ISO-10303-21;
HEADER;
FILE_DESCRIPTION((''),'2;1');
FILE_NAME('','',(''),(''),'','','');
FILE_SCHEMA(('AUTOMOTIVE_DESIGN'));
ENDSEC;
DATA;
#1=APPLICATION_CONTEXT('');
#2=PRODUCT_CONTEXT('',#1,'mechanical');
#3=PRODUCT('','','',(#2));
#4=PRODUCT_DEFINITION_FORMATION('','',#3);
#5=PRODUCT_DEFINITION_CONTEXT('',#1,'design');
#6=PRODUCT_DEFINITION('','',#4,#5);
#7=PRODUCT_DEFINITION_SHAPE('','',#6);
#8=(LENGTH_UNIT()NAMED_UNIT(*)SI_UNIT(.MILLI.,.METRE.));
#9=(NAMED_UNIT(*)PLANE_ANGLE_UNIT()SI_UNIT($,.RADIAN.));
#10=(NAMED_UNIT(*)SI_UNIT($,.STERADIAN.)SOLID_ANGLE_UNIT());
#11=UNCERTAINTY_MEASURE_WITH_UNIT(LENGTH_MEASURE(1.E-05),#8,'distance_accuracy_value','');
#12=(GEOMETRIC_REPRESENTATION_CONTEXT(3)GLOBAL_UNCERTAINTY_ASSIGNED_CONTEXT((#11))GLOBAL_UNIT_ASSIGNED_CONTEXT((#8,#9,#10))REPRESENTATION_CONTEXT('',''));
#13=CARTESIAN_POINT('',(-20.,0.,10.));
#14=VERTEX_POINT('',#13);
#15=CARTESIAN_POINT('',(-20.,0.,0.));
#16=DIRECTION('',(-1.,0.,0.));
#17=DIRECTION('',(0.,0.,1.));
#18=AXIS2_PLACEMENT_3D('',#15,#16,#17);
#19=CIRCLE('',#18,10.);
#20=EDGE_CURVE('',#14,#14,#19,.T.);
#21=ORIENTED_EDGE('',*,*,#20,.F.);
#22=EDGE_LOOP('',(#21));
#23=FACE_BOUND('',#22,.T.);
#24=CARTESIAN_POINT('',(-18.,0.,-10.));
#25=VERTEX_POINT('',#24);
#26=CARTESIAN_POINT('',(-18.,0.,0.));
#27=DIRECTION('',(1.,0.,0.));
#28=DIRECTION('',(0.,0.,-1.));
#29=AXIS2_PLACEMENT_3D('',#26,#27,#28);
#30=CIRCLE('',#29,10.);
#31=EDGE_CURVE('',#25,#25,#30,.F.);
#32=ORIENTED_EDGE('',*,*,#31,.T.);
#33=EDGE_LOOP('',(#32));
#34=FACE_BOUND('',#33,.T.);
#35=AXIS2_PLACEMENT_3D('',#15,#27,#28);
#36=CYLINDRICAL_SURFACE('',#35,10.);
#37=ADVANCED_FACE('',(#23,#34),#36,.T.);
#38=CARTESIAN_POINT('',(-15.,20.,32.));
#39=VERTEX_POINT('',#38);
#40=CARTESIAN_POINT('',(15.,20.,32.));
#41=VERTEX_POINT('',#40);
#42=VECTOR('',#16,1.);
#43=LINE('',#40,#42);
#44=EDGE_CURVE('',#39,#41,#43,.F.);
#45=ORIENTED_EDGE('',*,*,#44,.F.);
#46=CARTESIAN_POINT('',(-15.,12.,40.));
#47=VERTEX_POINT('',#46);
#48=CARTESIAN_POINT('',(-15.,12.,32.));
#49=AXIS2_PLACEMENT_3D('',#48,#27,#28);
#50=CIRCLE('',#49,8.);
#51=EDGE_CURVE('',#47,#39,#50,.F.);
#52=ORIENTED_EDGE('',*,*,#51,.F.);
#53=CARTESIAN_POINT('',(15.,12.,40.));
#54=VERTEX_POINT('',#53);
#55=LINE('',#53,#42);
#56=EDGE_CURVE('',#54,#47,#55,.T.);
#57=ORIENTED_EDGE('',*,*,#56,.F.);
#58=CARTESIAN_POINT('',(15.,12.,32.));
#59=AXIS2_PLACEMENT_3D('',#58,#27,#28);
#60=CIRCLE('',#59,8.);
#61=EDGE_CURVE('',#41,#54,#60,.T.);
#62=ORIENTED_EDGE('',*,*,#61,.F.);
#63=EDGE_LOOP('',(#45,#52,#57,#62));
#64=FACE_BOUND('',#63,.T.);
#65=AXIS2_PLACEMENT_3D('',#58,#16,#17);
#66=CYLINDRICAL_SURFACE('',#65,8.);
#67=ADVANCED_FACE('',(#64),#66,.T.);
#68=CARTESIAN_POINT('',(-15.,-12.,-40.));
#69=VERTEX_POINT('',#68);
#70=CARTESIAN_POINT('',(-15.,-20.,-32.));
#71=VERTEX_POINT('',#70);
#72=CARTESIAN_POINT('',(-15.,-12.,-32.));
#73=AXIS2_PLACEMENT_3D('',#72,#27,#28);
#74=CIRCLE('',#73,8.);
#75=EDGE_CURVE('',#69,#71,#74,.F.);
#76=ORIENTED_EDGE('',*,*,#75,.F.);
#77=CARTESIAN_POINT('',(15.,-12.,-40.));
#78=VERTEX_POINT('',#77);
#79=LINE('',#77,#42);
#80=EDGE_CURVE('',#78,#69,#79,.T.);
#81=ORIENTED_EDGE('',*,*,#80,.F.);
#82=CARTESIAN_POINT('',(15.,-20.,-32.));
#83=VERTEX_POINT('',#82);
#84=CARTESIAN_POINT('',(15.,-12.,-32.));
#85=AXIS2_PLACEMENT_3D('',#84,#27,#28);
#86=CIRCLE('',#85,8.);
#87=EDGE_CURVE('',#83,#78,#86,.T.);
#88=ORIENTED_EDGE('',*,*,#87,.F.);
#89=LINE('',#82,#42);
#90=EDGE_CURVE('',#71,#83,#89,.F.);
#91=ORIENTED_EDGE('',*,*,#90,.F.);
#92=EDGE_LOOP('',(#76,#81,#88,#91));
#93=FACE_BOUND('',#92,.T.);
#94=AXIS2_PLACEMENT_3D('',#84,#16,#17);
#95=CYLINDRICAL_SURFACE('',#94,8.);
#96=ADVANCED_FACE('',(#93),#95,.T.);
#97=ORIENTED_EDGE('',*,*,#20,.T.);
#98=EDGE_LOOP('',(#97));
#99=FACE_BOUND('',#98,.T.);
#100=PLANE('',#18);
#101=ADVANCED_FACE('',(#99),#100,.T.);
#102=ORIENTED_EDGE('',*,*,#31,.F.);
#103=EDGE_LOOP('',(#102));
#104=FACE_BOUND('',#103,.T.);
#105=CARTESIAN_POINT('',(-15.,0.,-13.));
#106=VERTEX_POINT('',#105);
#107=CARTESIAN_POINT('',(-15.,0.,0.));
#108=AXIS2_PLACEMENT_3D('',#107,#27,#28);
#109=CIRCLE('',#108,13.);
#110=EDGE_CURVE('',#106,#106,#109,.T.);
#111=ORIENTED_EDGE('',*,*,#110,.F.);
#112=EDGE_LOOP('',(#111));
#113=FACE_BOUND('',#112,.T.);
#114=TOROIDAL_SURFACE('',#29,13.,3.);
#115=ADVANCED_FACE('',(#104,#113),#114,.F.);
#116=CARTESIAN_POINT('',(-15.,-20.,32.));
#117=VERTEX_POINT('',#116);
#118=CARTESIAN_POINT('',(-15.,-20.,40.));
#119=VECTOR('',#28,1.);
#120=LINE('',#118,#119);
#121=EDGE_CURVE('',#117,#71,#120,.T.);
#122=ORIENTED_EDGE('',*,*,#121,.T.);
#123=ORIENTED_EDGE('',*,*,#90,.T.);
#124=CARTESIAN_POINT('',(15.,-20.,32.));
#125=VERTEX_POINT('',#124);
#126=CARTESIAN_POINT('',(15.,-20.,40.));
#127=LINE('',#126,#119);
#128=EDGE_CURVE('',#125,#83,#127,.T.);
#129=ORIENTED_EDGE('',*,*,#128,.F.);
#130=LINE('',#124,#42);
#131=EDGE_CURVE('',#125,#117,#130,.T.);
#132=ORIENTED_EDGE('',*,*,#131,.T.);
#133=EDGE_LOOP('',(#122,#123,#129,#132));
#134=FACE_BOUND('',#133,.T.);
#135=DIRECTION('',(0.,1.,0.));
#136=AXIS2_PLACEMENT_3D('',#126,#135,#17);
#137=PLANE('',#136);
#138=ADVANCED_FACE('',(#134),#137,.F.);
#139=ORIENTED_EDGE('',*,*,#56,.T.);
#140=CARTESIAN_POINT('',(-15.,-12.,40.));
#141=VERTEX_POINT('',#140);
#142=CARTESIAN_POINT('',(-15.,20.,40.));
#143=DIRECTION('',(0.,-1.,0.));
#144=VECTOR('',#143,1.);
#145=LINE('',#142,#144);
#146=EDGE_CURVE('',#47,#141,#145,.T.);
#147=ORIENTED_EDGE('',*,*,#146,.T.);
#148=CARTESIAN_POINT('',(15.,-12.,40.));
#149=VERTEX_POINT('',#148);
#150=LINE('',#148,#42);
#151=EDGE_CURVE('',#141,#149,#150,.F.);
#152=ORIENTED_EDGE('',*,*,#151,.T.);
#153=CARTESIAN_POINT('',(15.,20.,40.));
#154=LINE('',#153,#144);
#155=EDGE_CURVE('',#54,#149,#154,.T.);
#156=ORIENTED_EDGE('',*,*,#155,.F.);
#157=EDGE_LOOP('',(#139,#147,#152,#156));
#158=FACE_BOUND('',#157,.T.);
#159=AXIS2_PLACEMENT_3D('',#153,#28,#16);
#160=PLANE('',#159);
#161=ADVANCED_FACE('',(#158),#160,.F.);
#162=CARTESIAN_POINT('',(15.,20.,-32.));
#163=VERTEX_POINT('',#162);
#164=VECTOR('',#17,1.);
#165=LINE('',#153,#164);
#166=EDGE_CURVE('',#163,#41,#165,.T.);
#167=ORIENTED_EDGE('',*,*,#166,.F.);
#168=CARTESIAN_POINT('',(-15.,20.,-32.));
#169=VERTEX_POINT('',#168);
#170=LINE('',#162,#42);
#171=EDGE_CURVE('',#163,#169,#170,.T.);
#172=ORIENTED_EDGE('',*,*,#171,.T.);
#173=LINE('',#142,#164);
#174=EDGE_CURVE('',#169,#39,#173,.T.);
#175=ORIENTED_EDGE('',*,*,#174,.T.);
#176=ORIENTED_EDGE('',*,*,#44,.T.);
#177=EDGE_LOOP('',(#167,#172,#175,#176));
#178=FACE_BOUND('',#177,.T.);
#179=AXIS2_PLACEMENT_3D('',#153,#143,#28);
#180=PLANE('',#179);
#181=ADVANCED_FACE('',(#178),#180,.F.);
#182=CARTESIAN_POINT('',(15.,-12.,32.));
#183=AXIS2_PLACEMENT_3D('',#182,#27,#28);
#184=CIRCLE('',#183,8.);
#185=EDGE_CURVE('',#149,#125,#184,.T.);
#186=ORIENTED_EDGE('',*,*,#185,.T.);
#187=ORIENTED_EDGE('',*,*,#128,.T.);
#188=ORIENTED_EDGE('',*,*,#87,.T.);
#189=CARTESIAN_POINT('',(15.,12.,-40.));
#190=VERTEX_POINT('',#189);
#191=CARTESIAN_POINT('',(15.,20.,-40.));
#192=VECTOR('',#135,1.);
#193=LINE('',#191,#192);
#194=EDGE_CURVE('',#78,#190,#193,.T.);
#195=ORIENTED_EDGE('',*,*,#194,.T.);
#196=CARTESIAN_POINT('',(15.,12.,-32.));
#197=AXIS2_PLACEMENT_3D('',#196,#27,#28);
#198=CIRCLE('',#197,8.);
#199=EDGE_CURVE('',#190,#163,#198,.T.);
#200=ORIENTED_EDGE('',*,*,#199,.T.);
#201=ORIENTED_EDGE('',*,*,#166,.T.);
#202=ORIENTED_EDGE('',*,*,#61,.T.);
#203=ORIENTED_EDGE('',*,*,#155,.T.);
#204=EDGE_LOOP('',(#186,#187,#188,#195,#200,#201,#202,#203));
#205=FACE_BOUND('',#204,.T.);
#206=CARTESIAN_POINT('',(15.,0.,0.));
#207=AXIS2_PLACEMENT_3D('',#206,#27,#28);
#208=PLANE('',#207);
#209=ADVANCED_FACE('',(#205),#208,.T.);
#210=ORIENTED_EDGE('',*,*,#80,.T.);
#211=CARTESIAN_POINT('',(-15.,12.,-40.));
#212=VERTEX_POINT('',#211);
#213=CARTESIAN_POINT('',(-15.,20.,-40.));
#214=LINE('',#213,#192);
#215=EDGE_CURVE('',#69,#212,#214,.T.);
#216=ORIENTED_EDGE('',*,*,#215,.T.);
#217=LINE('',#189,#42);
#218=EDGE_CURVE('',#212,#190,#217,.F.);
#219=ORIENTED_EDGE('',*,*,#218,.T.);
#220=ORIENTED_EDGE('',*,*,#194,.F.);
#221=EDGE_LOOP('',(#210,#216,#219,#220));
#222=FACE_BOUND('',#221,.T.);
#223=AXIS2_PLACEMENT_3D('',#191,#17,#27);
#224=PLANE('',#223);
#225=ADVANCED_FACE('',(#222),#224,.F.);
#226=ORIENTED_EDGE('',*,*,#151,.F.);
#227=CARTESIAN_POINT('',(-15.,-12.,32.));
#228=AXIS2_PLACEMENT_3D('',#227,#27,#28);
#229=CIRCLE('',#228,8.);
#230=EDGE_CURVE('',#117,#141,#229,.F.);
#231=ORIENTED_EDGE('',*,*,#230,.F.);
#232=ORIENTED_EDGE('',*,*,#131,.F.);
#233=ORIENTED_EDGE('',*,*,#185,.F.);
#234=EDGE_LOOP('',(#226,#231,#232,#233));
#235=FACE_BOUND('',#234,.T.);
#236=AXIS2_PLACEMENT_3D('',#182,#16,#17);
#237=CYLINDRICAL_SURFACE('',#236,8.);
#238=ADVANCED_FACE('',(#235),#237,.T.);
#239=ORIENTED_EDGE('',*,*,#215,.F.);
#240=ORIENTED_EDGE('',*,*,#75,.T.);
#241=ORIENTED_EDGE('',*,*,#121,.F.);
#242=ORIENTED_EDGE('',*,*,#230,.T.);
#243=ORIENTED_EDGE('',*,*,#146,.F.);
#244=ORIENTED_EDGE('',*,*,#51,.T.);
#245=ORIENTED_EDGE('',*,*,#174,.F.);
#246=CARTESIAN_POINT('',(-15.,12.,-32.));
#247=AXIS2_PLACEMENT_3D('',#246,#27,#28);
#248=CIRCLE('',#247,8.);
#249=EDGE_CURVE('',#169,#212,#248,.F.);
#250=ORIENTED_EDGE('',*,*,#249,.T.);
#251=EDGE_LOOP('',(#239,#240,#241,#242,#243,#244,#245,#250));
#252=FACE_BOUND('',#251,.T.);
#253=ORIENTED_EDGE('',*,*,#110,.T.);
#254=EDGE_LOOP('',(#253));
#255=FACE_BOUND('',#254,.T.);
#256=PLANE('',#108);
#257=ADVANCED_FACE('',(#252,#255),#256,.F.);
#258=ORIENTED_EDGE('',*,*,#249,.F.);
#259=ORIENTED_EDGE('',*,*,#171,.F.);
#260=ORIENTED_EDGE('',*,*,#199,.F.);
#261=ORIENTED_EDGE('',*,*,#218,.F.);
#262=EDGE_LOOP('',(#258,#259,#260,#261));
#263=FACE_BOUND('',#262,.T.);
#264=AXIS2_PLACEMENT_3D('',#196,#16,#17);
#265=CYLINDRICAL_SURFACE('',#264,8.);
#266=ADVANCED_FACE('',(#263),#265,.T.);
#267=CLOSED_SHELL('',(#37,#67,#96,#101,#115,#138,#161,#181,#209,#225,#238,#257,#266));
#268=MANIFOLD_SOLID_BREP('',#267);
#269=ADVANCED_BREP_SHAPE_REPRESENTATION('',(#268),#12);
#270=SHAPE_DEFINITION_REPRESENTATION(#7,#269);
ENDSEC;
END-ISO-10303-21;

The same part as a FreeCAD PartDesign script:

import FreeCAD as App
import Part
import Sketcher

V = App.Vector


def edges_at(feature, points):
    """Names of the edges that pass closest to the given points."""
    edges = feature.Shape.Edges
    near = lambda p: min(range(len(edges)), key=lambda i: edges[i].distToShape(Part.Vertex(*p))[0])
    return sorted({f"Edge{near(p) + 1}" for p in points})


def add_polygon(sketch, points):
    """Adds a closed chain of lines whose ends are joined by coincident constraints."""
    first, n = sketch.GeometryCount, len(points)
    for a, b in zip(points, points[1:] + points[:1]):
        sketch.addGeometry(Part.LineSegment(App.Vector(*a, 0), App.Vector(*b, 0)), False)
    for i in range(n):
        sketch.addConstraint(Sketcher.Constraint("Coincident", first + i, 2, first + (i + 1) % n, 1))

doc = App.newDocument("Part")
body = doc.addObject("PartDesign::Body", "Body")

# Sketch on YZ plane
sketch1 = doc.addObject("Sketcher::SketchObject", "Sketch")
body.addObject(sketch1)
sketch1.AttachmentSupport = (doc.YZ_Plane, [""])
sketch1.MapMode = "FlatFace"
add_polygon(sketch1, [(20, 40), (-20, 40), (-20, -40), (20, -40)])  # lines 0-3
sketch1.addConstraint(Sketcher.Constraint("Horizontal", 0))
sketch1.addConstraint(Sketcher.Constraint("Vertical", 1))
sketch1.addConstraint(Sketcher.Constraint("Horizontal", 2))
sketch1.addConstraint(Sketcher.Constraint("Vertical", 3))
sketch1.addConstraint(Sketcher.Constraint("Symmetric", 0, 2, 2, 2, -1, 1))
sketch1.addConstraint(Sketcher.Constraint("DistanceX", 0, 2, 0, 1, 40.0))
sketch1.addConstraint(Sketcher.Constraint("DistanceY", 1, 2, 1, 1, 80.0))
pad1 = doc.addObject("PartDesign::Pad", "Pad")
body.addObject(pad1)
pad1.Profile = sketch1
pad1.Length = 30
pad1.Midplane = True
doc.recompute()

fillet = doc.addObject("PartDesign::Fillet", "Fillet")
body.addObject(fillet)
fillet.Base = (pad1, edges_at(pad1, [
    (0, -20, -40),
    (0, -20, 40),
    (0, 20, 40),
    (0, 20, -40),
]))
fillet.Radius = 8

# Sketch on YZ plane
sketch2 = doc.addObject("Sketcher::SketchObject", "Sketch001")
body.addObject(sketch2)
sketch2.AttachmentSupport = (doc.YZ_Plane, [""])
sketch2.MapMode = "FlatFace"
sketch2.AttachmentOffset = App.Placement(V(0, 0, -15), App.Rotation())
sketch2.addGeometry(Part.Circle(V(0, 0, 0), V(0, 0, 1), 10), False)
sketch2.addConstraint(Sketcher.Constraint("Coincident", 0, 3, -1, 1))
sketch2.addConstraint(Sketcher.Constraint("Diameter", 0, 20.0))
pad2 = doc.addObject("PartDesign::Pad", "Pad001")
body.addObject(pad2)
pad2.Profile = sketch2
pad2.Length = 5
pad2.Reversed = True
doc.recompute()

fillet2 = doc.addObject("PartDesign::Fillet", "Fillet001")
body.addObject(fillet2)
fillet2.Base = (pad2, edges_at(pad2, [(-15, 0, -10)]))
fillet2.Radius = 3

doc.recompute()
